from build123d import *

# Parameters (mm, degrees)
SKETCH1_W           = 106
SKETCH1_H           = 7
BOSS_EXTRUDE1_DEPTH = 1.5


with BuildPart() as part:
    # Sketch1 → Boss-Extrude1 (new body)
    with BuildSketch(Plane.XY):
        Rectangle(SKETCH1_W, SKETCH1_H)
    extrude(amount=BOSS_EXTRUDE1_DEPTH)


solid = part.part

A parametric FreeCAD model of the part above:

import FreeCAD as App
import Part
import Sketcher

V = App.Vector
Q = App.Units.Quantity

doc = App.newDocument("Part")
body = doc.addObject("PartDesign::Body", "Body")

# Sketch on XY plane
sketch1 = body.newObject("Sketcher::SketchObject", "Sketch")
sketch1.AttachmentSupport = (doc.getObject("XY_Plane"), [""])
sketch1.MapMode = "FlatFace"
sketch1.addGeometry([
    Part.LineSegment(V(-53, 4, 0), V(-53, -4, 0)),
    Part.LineSegment(V(-53, -4, 0), V(53, -4, 0)),
    Part.LineSegment(V(53, -4, 0), V(53, 4, 0)),
    Part.LineSegment(V(53, 4, 0), V(-53, 4, 0)),
], False)
sketch1.addConstraint([
    Sketcher.Constraint("Coincident", 0, 2, 1, 1),
    Sketcher.Constraint("Coincident", 1, 2, 2, 1),
    Sketcher.Constraint("Coincident", 2, 2, 3, 1),
    Sketcher.Constraint("Coincident", 3, 2, 0, 1),
    Sketcher.Constraint("Vertical", 0),
    Sketcher.Constraint("Horizontal", 1),
    Sketcher.Constraint("Vertical", 2),
    Sketcher.Constraint("Horizontal", 3),
    Sketcher.Constraint("Symmetric", 0, 2, 2, 2, -1, 1),
    Sketcher.Constraint("DistanceX", 1, 1, 1, 2, Q("106 mm")),
    Sketcher.Constraint("DistanceY", 0, 2, 0, 1, Q("7 mm")),
])
pad1 = body.newObject("PartDesign::Pad", "Pad")
pad1.Profile = sketch1
pad1.Length = 1.5

doc.recompute()
